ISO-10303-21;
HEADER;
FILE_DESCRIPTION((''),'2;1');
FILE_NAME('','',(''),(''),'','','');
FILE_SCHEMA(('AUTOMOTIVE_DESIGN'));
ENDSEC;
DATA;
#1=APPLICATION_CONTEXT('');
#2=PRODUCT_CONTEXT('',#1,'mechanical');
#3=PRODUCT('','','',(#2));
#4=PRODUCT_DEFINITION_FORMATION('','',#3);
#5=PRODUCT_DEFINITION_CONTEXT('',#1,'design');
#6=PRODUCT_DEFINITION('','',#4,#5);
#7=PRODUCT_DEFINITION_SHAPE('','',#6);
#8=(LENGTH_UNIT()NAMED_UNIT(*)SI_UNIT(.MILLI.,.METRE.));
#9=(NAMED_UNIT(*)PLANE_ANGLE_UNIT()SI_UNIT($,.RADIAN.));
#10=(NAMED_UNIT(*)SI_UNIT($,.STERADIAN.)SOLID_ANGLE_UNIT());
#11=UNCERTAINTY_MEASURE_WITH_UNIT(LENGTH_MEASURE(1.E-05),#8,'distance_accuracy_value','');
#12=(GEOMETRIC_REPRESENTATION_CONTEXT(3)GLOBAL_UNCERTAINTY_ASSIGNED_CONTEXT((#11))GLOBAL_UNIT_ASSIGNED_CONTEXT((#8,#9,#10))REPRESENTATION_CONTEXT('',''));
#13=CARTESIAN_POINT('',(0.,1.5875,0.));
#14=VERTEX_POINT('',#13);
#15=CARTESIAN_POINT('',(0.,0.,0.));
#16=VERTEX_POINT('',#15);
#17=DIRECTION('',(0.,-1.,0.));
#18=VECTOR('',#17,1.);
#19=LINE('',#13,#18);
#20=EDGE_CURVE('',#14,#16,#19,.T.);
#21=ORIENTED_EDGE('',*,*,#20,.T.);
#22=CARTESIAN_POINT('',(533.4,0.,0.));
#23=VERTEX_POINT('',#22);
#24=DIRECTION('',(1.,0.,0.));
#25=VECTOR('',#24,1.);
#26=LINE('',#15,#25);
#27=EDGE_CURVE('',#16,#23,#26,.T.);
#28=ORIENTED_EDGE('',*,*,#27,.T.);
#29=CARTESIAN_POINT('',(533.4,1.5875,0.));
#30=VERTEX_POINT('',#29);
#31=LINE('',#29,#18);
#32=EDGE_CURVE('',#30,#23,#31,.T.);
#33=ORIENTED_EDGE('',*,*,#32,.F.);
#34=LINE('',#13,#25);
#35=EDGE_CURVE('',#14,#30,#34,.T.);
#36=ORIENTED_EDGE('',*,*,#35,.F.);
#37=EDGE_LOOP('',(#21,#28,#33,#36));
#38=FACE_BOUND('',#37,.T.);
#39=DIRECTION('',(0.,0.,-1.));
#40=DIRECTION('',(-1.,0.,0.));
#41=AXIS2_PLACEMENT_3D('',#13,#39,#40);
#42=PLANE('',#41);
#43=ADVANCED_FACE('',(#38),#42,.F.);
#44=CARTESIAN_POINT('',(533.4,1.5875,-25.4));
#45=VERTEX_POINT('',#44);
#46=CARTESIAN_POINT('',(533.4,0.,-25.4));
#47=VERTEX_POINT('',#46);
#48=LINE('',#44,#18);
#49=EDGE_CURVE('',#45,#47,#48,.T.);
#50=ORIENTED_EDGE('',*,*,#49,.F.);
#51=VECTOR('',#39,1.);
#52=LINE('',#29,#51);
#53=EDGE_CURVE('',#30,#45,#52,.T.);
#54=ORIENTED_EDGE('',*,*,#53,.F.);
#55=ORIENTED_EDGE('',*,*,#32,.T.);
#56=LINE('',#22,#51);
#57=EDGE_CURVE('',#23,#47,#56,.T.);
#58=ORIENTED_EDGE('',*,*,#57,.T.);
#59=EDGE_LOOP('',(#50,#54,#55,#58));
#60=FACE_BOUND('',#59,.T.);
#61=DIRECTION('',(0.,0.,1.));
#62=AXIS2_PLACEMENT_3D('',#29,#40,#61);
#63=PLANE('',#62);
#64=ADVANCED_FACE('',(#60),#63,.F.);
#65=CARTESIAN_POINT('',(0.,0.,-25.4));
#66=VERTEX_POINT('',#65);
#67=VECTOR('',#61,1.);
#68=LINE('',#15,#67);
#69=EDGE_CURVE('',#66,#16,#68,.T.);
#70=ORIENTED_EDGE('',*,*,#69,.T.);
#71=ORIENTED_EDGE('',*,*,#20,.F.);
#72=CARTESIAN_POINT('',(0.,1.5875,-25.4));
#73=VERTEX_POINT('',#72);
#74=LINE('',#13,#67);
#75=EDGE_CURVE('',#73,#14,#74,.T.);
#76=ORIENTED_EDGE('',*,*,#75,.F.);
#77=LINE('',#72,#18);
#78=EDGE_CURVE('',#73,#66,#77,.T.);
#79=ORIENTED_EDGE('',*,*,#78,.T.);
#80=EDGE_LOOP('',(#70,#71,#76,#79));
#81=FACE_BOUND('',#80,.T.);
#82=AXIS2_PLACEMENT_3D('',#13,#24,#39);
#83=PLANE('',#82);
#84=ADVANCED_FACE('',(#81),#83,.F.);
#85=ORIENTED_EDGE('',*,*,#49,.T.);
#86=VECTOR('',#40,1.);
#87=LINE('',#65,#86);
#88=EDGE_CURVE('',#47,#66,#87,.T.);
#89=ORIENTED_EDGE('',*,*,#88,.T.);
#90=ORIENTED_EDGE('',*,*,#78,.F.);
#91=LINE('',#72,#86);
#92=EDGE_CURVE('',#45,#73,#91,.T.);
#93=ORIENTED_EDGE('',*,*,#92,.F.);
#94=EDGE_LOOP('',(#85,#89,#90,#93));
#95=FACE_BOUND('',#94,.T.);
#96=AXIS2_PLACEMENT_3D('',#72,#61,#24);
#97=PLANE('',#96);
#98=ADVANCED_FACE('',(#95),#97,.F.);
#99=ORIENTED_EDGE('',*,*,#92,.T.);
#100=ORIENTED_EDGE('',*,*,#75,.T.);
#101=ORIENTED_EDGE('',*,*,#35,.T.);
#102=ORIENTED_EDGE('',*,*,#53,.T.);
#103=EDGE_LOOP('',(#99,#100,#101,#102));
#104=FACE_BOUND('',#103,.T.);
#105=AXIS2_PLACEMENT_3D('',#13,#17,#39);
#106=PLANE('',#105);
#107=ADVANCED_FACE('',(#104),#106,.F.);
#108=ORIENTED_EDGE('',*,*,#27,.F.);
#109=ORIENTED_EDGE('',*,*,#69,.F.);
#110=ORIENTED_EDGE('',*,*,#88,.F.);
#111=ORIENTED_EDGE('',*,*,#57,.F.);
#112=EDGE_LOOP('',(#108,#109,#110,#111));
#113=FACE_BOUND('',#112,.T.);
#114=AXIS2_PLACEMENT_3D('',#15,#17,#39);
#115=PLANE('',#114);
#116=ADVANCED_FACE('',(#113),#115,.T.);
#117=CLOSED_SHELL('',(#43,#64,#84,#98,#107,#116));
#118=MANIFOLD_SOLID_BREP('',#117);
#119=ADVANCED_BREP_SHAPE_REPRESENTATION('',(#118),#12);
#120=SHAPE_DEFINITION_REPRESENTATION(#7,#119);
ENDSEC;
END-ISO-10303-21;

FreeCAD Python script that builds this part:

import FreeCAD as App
import Part
import Sketcher
Q = App.Units.Quantity


def add_polygon(sketch, points):
    """Adds a closed chain of lines whose ends are joined by coincident constraints."""
    first, n = sketch.GeometryCount, len(points)
    for a, b in zip(points, points[1:] + points[:1]):
        sketch.addGeometry(Part.LineSegment(App.Vector(*a, 0), App.Vector(*b, 0)), False)
    for i in range(n):
        sketch.addConstraint(Sketcher.Constraint("Coincident", first + i, 2, first + (i + 1) % n, 1))

doc = App.newDocument("Part")
body = doc.addObject("PartDesign::Body", "Body")

# Sketch on XZ plane
sketch1 = doc.addObject("Sketcher::SketchObject", "Sketch")
body.addObject(sketch1)
sketch1.AttachmentSupport = (doc.XZ_Plane, [""])
sketch1.MapMode = "FlatFace"
add_polygon(sketch1, [(0, -25), (0, 0), (533, 0), (533, -25)])  # lines 0-3
sketch1.addConstraint(Sketcher.Constraint("Vertical", 0))
sketch1.addConstraint(Sketcher.Constraint("Horizontal", 1))
sketch1.addConstraint(Sketcher.Constraint("Vertical", 2))
sketch1.addConstraint(Sketcher.Constraint("Horizontal", 3))
sketch1.addConstraint(Sketcher.Constraint("Coincident", 0, 2, -1, 1))
sketch1.addConstraint(Sketcher.Constraint("DistanceX", 1, 1, 1, 2, Q("21 in")))
sketch1.addConstraint(Sketcher.Constraint("DistanceY", 0, 1, 0, 2, Q("1 in")))
pad1 = doc.addObject("PartDesign::Pad", "Pad")
body.addObject(pad1)
pad1.Profile = sketch1
pad1.Length = Q("0.0625 in")
pad1.Reversed = True

doc.recompute()
